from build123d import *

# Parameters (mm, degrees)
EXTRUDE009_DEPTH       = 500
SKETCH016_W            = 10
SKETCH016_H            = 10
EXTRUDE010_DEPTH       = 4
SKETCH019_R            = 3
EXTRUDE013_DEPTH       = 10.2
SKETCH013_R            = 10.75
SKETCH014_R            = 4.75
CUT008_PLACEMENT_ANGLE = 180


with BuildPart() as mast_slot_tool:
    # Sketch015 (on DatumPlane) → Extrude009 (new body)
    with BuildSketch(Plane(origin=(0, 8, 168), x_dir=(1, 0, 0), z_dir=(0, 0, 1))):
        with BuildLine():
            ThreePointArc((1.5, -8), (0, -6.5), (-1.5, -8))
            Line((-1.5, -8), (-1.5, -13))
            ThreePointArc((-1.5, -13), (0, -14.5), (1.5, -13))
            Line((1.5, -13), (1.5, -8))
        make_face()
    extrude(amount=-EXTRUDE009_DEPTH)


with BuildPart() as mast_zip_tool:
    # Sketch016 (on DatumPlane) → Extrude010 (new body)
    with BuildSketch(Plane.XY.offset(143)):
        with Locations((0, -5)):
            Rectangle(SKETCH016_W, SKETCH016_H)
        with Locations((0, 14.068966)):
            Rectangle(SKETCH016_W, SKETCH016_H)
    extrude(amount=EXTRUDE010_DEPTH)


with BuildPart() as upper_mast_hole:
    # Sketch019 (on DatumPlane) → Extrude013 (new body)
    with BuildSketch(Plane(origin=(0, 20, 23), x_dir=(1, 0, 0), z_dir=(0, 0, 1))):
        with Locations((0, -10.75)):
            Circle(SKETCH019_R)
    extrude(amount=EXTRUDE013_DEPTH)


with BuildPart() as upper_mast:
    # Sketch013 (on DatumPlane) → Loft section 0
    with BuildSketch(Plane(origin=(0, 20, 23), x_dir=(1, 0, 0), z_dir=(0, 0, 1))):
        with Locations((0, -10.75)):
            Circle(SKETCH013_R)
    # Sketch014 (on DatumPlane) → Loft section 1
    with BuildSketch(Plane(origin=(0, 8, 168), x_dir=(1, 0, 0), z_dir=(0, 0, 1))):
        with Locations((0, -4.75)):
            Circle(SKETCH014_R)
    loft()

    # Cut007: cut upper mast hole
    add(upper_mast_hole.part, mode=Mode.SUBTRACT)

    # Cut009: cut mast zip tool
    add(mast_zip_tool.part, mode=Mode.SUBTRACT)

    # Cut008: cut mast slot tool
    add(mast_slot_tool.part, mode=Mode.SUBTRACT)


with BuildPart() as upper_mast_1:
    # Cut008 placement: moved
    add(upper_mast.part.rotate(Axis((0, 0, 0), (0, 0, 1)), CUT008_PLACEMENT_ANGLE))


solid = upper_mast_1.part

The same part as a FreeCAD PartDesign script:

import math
import FreeCAD as App
import Part
import Sketcher

V = App.Vector
Q = App.Units.Quantity


def add_polygon(sketch, points):
    """Adds a closed chain of lines whose ends are joined by coincident constraints."""
    first, n = sketch.GeometryCount, len(points)
    for a, b in zip(points, points[1:] + points[:1]):
        sketch.addGeometry(Part.LineSegment(App.Vector(*a, 0), App.Vector(*b, 0)), False)
    for i in range(n):
        sketch.addConstraint(Sketcher.Constraint("Coincident", first + i, 2, first + (i + 1) % n, 1))

doc = App.newDocument("Part")
body = doc.addObject("PartDesign::Body", "Body")

sketch1 = body.newObject("Sketcher::SketchObject", "Sketch")
sketch1.AttachmentSupport = (doc.getObject("XY_Plane"), [""])
sketch1.MapMode = "FlatFace"
sketch1.AttachmentOffset = App.Placement(V(0, 0, 168), App.Rotation())
sketch1.addGeometry([
    Part.ArcOfCircle(Part.Circle(V(0, 0, 0), V(0, 0, 1), 1.5), math.radians(0), math.radians(180)),
    Part.LineSegment(V(-1.5, 0, 0), V(-1.5, -5, 0)),
    Part.ArcOfCircle(Part.Circle(V(0, -5, 0), V(0, 0, 1), 1.5), math.radians(180), math.radians(360)),
    Part.LineSegment(V(1.5, -5, 0), V(1.5, 0, 0)),
], False)
sketch1.addConstraint([
    Sketcher.Constraint("Tangent", 0, 2, 1, 1),
    Sketcher.Constraint("Tangent", 1, 2, 2, 1),
    Sketcher.Constraint("Tangent", 2, 2, 3, 1),
    Sketcher.Constraint("Tangent", 3, 2, 0, 1),
    Sketcher.Constraint("Vertical", 1),
    Sketcher.Constraint("Vertical", 3),
    Sketcher.Constraint("Coincident", 0, 3, -1, 1),
    Sketcher.Constraint("Radius", 0, Q("1.5 mm")),
    Sketcher.Constraint("DistanceY", 1, 2, 1, 1, Q("5 mm")),
])
pad1 = body.newObject("PartDesign::Pad", "Pad")
pad1.Profile = sketch1
pad1.Length = 500
pad1.Reversed = True
body2 = doc.addObject("PartDesign::Body", "Body001")
body2.AllowCompound = True

sketch2 = body2.newObject("Sketcher::SketchObject", "Sketch001")
sketch2.AttachmentSupport = (doc.getObject("XY_Plane001"), [""])
sketch2.MapMode = "FlatFace"
sketch2.AttachmentOffset = App.Placement(V(0, 0, 143), App.Rotation())
add_polygon(sketch2, [(-5, 0), (-5, -10), (5, -10), (5, 0)])
add_polygon(sketch2, [(-5, 19), (-5, 9), (5, 9), (5, 19)])
sketch2.addConstraint([
    Sketcher.Constraint("Vertical", 0),
    Sketcher.Constraint("Horizontal", 1),
    Sketcher.Constraint("Vertical", 2),
    Sketcher.Constraint("Horizontal", 3),
    Sketcher.Constraint("Vertical", 4),
    Sketcher.Constraint("Horizontal", 5),
    Sketcher.Constraint("Vertical", 6),
    Sketcher.Constraint("Horizontal", 7),
    Sketcher.Constraint("Symmetric", 2, 2, 3, 2, -1, 1),
    Sketcher.Constraint("Vertical", 3, 2, 4, 2),
    Sketcher.Constraint("Vertical", 2, 2, 5, 2),
    Sketcher.Constraint("Equal", 7, 0),
    Sketcher.Constraint("Equal", 2, 4),
    Sketcher.Constraint("DistanceX", 1, 1, 1, 2, Q("10 mm")),
    Sketcher.Constraint("DistanceY", -1, 1, 4, 2, Q("9.068966 mm")),
])
pad2 = body2.newObject("PartDesign::Pad", "Pad001")
pad2.Profile = sketch2
pad2.Length = 4
body3 = doc.addObject("PartDesign::Body", "Body002")

sketch3 = body3.newObject("Sketcher::SketchObject", "Sketch002")
sketch3.AttachmentSupport = (doc.getObject("XY_Plane002"), [""])
sketch3.MapMode = "FlatFace"
sketch3.AttachmentOffset = App.Placement(V(0, 0, 23), App.Rotation())
sketch3.addGeometry(Part.Circle(V(0, 9.2, 0), V(0, 0, 1), 3), False)
sketch3.addConstraint([
    Sketcher.Constraint("PointOnObject", 0, 3, -2),
    Sketcher.Constraint("Diameter", 0, Q("6 mm")),
    Sketcher.Constraint("DistanceY", -1, 1, 0, 3, Q("9.25 mm")),
])
pad3 = body3.newObject("PartDesign::Pad", "Pad002")
pad3.Profile = sketch3
pad3.Length = 10.2
body4 = doc.addObject("PartDesign::Body", "Body003")

sketch4 = body4.newObject("Sketcher::SketchObject", "Sketch003")
sketch4.AttachmentSupport = (doc.getObject("XY_Plane003"), [""])
sketch4.MapMode = "FlatFace"
sketch4.AttachmentOffset = App.Placement(V(0, 0, 23), App.Rotation())
sketch4.addGeometry(Part.Circle(V(0, 9, 0), V(0, 0, 1), 11), False)
sketch4.addConstraint([
    Sketcher.Constraint("PointOnObject", 0, 3, -2),
    Sketcher.Constraint("Diameter", 0, Q("21.5 mm")),
    Sketcher.Constraint("DistanceY", -1, 1, 0, 3, Q("9.25 mm")),
])

sketch5 = body4.newObject("Sketcher::SketchObject", "Sketch004")
sketch5.AttachmentSupport = (doc.getObject("XY_Plane003"), [""])
sketch5.MapMode = "FlatFace"
sketch5.AttachmentOffset = App.Placement(V(0, 0, 168), App.Rotation())
sketch5.addGeometry(Part.Circle(V(0, 3.2, 0), V(0, 0, 1), 4.8), False)
sketch5.addConstraint([
    Sketcher.Constraint("PointOnObject", 0, 3, -2),
    Sketcher.Constraint("Diameter", 0, Q("9.5 mm")),
    Sketcher.Constraint("DistanceY", -1, 1, 0, 3, Q("3.25 mm")),
])

additiveloft = body4.newObject("PartDesign::AdditiveLoft", "AdditiveLoft")
additiveloft.Profile = sketch4
additiveloft.Sections = [sketch5]
doc.recompute()

boolean = body4.newObject("PartDesign::Boolean", "Boolean")
boolean.Type = "Cut"
boolean.addObjects([body3])
doc.recompute()

boolean2 = body4.newObject("PartDesign::Boolean", "Boolean001")
boolean2.Type = "Cut"
boolean2.addObjects([body2])
doc.recompute()

boolean3 = body4.newObject("PartDesign::Boolean", "Boolean002")
boolean3.Type = "Cut"
boolean3.addObjects([body])
body5 = doc.addObject("PartDesign::Body", "Body004")
doc.recompute()

body4.Placement = App.Placement(V(0, 0, 0), App.Rotation(V(0, 0, 1), 180))
boolean4 = body5.newObject("PartDesign::Boolean", "Boolean003")
boolean4.Type = "Fuse"
boolean4.addObjects([body4])

doc.recompute()
